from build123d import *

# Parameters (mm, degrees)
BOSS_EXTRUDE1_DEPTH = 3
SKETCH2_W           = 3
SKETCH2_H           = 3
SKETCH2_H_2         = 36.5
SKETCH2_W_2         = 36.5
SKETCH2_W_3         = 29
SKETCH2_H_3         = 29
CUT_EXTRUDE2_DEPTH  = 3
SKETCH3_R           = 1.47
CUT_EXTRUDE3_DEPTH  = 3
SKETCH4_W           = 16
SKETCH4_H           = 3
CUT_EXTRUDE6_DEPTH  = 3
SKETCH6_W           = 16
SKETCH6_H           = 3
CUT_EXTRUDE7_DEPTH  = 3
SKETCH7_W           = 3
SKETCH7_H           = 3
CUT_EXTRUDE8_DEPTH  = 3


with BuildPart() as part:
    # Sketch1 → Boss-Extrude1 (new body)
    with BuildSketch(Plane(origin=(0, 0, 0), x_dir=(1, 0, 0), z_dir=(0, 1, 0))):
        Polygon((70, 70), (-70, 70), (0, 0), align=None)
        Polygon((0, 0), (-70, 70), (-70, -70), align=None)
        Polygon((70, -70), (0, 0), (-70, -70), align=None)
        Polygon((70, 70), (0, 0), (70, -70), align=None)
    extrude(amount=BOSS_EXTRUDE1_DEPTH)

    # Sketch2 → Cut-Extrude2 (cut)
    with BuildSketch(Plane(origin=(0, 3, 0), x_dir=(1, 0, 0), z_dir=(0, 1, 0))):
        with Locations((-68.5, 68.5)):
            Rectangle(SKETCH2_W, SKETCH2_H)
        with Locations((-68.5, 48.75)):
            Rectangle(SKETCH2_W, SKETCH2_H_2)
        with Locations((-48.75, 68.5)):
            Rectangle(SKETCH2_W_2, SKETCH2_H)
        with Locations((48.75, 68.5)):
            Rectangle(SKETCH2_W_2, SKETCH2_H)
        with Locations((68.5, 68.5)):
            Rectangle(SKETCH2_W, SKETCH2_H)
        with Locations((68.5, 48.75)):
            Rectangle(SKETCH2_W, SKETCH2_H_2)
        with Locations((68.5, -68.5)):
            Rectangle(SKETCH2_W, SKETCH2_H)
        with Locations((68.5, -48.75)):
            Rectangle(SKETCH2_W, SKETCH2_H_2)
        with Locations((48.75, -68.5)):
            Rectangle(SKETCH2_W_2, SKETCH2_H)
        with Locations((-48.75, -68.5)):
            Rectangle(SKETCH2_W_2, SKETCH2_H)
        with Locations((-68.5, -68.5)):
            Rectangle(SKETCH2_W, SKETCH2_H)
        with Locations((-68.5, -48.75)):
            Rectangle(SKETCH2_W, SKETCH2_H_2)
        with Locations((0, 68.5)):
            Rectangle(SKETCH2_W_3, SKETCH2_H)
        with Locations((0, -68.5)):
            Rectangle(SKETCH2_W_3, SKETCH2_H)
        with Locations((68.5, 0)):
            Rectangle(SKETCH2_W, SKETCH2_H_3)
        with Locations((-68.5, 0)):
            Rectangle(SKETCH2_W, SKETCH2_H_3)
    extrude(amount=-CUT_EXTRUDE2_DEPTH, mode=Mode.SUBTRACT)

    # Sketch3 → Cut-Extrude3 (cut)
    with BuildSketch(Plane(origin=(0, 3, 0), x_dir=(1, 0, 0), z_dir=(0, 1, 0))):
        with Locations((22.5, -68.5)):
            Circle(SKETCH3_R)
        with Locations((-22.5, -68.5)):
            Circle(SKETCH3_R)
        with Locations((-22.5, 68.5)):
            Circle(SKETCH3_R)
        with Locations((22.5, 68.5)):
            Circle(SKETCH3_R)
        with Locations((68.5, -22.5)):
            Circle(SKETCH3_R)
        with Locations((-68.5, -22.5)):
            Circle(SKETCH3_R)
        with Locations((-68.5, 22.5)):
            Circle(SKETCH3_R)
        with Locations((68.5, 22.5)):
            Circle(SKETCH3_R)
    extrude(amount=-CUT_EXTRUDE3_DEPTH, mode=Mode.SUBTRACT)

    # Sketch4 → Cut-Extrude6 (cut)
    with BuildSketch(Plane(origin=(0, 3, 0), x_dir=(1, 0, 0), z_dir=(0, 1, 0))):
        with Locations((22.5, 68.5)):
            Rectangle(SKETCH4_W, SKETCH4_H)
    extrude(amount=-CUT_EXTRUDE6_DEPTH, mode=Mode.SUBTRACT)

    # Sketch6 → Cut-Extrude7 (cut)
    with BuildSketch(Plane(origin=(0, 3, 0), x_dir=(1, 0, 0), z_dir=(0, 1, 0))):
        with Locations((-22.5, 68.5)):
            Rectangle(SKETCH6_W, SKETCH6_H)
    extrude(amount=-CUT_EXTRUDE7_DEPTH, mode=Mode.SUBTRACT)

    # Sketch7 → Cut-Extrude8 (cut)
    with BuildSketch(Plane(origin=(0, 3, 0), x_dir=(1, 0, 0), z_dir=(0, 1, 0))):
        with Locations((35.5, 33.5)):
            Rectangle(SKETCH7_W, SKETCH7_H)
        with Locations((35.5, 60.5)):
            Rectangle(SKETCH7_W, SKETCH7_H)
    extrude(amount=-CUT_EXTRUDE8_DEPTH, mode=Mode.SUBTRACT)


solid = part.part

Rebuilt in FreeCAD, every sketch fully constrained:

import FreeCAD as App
import Part
import Sketcher
from FreeCAD import Vector


def add_polygon(sketch, points):
    """Adds a closed chain of lines whose ends are joined by coincident constraints."""
    first, n = sketch.GeometryCount, len(points)
    for a, b in zip(points, points[1:] + points[:1]):
        sketch.addGeometry(Part.LineSegment(App.Vector(*a, 0), App.Vector(*b, 0)), False)
    for i in range(n):
        sketch.addConstraint(Sketcher.Constraint("Coincident", first + i, 2, first + (i + 1) % n, 1))

doc = App.newDocument("Part")
body = doc.addObject("PartDesign::Body", "Body")

# Sketch on XZ plane
sketch1 = doc.addObject("Sketcher::SketchObject", "Sketch")
body.addObject(sketch1)
sketch1.AttachmentSupport = (doc.XZ_Plane, [""])
sketch1.MapMode = "FlatFace"
add_polygon(sketch1, [(70, -70), (-70, -70), (-70, 70), (70, 70)])  # lines 0-3
sketch1.addConstraint([
    Sketcher.Constraint("Horizontal", 0),
    Sketcher.Constraint("Vertical", 1),
    Sketcher.Constraint("Horizontal", 2),
    Sketcher.Constraint("Vertical", 3),
    Sketcher.Constraint("Symmetric", 0, 2, 2, 2, -1, 1),
    Sketcher.Constraint("Equal", 2, 1),
    Sketcher.Constraint("DistanceX", 0, 2, 0, 1, 140.0),
])
pad1 = doc.addObject("PartDesign::Pad", "Pad")
body.addObject(pad1)
pad1.Profile = sketch1
pad1.Length = 3
pad1.Reversed = True

# Sketch on XZ plane
sketch2 = doc.addObject("Sketcher::SketchObject", "Sketch001")
body.addObject(sketch2)
sketch2.AttachmentSupport = (doc.XZ_Plane, [""])
sketch2.MapMode = "FlatFace"
sketch2.AttachmentOffset = App.Placement(Vector(0, 0, -3), App.Rotation())
add_polygon(sketch2, [(-70, -70), (-70, -30.5), (-67, -30.5), (-67, -67), (-30.5, -67), (-30.5, -70)])  # lines 0-5
add_polygon(sketch2, [(30.5, -70), (30.5, -67), (67, -67), (67, -30.5), (70, -30.5), (70, -70)])  # lines 6-11
add_polygon(sketch2, [(70, 70), (70, 30.5), (67, 30.5), (67, 67), (30.5, 67), (30.5, 70)])  # lines 12-17
add_polygon(sketch2, [(-30.5, 70), (-30.5, 67), (-67, 67), (-67, 30.5), (-70, 30.5), (-70, 70)])  # lines 18-23
add_polygon(sketch2, [(-14.5, -70), (-14.5, -67), (14.5, -67), (14.5, -70)])  # lines 24-27
add_polygon(sketch2, [(-14.5, 67), (-14.5, 70), (14.5, 70), (14.5, 67)])  # lines 28-31
add_polygon(sketch2, [(67, -14.5), (67, 14.5), (70, 14.5), (70, -14.5)])  # lines 32-35
add_polygon(sketch2, [(-70, -14.5), (-70, 14.5), (-67, 14.5), (-67, -14.5)])  # lines 36-39
sketch2.addConstraint([
    Sketcher.Constraint("Vertical", 0),
    Sketcher.Constraint("Horizontal", 1),
    Sketcher.Constraint("Vertical", 2),
    Sketcher.Constraint("Horizontal", 3),
    Sketcher.Constraint("Vertical", 4),
    Sketcher.Constraint("Horizontal", 5),
    Sketcher.Constraint("Vertical", 6),
    Sketcher.Constraint("Horizontal", 7),
    Sketcher.Constraint("Vertical", 8),
    Sketcher.Constraint("Horizontal", 9),
    Sketcher.Constraint("Vertical", 10),
    Sketcher.Constraint("Horizontal", 11),
    Sketcher.Constraint("Vertical", 12),
    Sketcher.Constraint("Horizontal", 13),
    Sketcher.Constraint("Vertical", 14),
    Sketcher.Constraint("Horizontal", 15),
    Sketcher.Constraint("Vertical", 16),
    Sketcher.Constraint("Horizontal", 17),
    Sketcher.Constraint("Vertical", 18),
    Sketcher.Constraint("Horizontal", 19),
    Sketcher.Constraint("Vertical", 20),
    Sketcher.Constraint("Horizontal", 21),
    Sketcher.Constraint("Vertical", 22),
    Sketcher.Constraint("Horizontal", 23),
    Sketcher.Constraint("Vertical", 24),
    Sketcher.Constraint("Horizontal", 25),
    Sketcher.Constraint("Vertical", 26),
    Sketcher.Constraint("Horizontal", 27),
    Sketcher.Constraint("Vertical", 28),
    Sketcher.Constraint("Horizontal", 29),
    Sketcher.Constraint("Vertical", 30),
    Sketcher.Constraint("Horizontal", 31),
    Sketcher.Constraint("Vertical", 32),
    Sketcher.Constraint("Horizontal", 33),
    Sketcher.Constraint("Vertical", 34),
    Sketcher.Constraint("Horizontal", 35),
    Sketcher.Constraint("Vertical", 36),
    Sketcher.Constraint("Horizontal", 37),
    Sketcher.Constraint("Vertical", 38),
    Sketcher.Constraint("Horizontal", 39),
    Sketcher.Constraint("Symmetric", 0, 2, 12, 2, -1, 1),
    Sketcher.Constraint("Symmetric", 2, 2, 14, 2, -1, 1),
    Sketcher.Constraint("Symmetric", 4, 2, 16, 2, -1, 1),
    Sketcher.Constraint("Symmetric", 6, 2, 18, 2, -1, 1),
    Sketcher.Constraint("Symmetric", 8, 2, 20, 2, -1, 1),
    Sketcher.Constraint("Symmetric", 10, 2, 22, 2, -1, 1),
    Sketcher.Constraint("Symmetric", 26, 2, 28, 2, -1, 1),
    Sketcher.Constraint("Symmetric", 24, 2, 30, 2, -1, 1),
    Sketcher.Constraint("Symmetric", 34, 2, 36, 2, -1, 1),
    Sketcher.Constraint("Symmetric", 32, 2, 38, 2, -1, 1),
    Sketcher.Constraint("Symmetric", 3, 2, 6, 2, -2),
    Sketcher.Constraint("Symmetric", 1, 2, 8, 2, -2),
    Sketcher.Constraint("Symmetric", 5, 2, 10, 2, -2),
    Sketcher.Constraint("Horizontal", 7, 2, 24, 2),
    Sketcher.Constraint("Horizontal", 11, 2, 26, 2),
    Sketcher.Constraint("Horizontal", 33, 2, 36, 2),
    Sketcher.Constraint("Vertical", 27, 2, 28, 2),
    Sketcher.Constraint("Vertical", 14, 2, 32, 2),
    Sketcher.Constraint("Vertical", 17, 2, 33, 2),
    Sketcher.Constraint("Equal", 23, 0),
    Sketcher.Constraint("Equal", 19, 2),
    Sketcher.Constraint("Equal", 31, 32),
    Sketcher.Constraint("DistanceX", 1, 1, 1, 2, 3.0),
    Sketcher.Constraint("DistanceX", 25, 1, 25, 2, 29.0),
    Sketcher.Constraint("DistanceX", 3, 1, 3, 2, 36.5),
    Sketcher.Constraint("DistanceX", 0, 2, -1, 1, 70.0),
    Sketcher.Constraint("DistanceY", 2, 2, -1, 1, 67.0),
])
pocket1 = doc.addObject("PartDesign::Pocket", "Pocket")
body.addObject(pocket1)
pocket1.Profile = sketch2
pocket1.Length = 3
pocket1.Reversed = True

# Sketch on XZ plane
sketch3 = doc.addObject("Sketcher::SketchObject", "Sketch002")
body.addObject(sketch3)
sketch3.AttachmentSupport = (doc.XZ_Plane, [""])
sketch3.MapMode = "FlatFace"
sketch3.AttachmentOffset = App.Placement(Vector(0, 0, -3), App.Rotation())
sketch3.addGeometry([
    Part.Circle(Vector(22.5, 68.5, 0), Vector(0, 0, 1), 1.5),  # 0
    Part.Circle(Vector(-22.5, 68.5, 0), Vector(0, 0, 1), 1.5),  # 1
    Part.Circle(Vector(-22.5, -68.5, 0), Vector(0, 0, 1), 1.5),  # 2
    Part.Circle(Vector(22.5, -68.5, 0), Vector(0, 0, 1), 1.5),  # 3
    Part.Circle(Vector(68.5, 22.5, 0), Vector(0, 0, 1), 1.5),  # 4
    Part.Circle(Vector(-68.5, 22.5, 0), Vector(0, 0, 1), 1.5),  # 5
    Part.Circle(Vector(-68.5, -22.5, 0), Vector(0, 0, 1), 1.5),  # 6
    Part.Circle(Vector(68.5, -22.5, 0), Vector(0, 0, 1), 1.5),  # 7
], False)
sketch3.addConstraint([
    Sketcher.Constraint("Equal", 0, 1),
    Sketcher.Constraint("Equal", 1, 2),
    Sketcher.Constraint("Equal", 2, 3),
    Sketcher.Constraint("Equal", 3, 4),
    Sketcher.Constraint("Equal", 4, 5),
    Sketcher.Constraint("Equal", 5, 6),
    Sketcher.Constraint("Equal", 6, 7),
    Sketcher.Constraint("Symmetric", 0, 3, 2, 3, -1, 1),
    Sketcher.Constraint("Symmetric", 1, 3, 3, 3, -1, 1),
    Sketcher.Constraint("Symmetric", 4, 3, 6, 3, -1, 1),
    Sketcher.Constraint("Symmetric", 5, 3, 7, 3, -1, 1),
    Sketcher.Constraint("Symmetric", 0, 3, 1, 3, -2),
    Sketcher.Constraint("Symmetric", 4, 3, 5, 3, -2),
    Sketcher.Constraint("Diameter", 0, 2.94),
    Sketcher.Constraint("DistanceX", 1, 3, 0, 3, 45.0),
    Sketcher.Constraint("DistanceY", 2, 3, 1, 3, 137.0),
    Sketcher.Constraint("DistanceX", 0, 3, 4, 3, 46.0),
    Sketcher.Constraint("DistanceY", 4, 3, 0, 3, 46.0),
])
pocket2 = doc.addObject("PartDesign::Pocket", "Pocket001")
body.addObject(pocket2)
pocket2.Profile = sketch3
pocket2.Length = 3
pocket2.Reversed = True

# Sketch on XZ plane
sketch4 = doc.addObject("Sketcher::SketchObject", "Sketch003")
body.addObject(sketch4)
sketch4.AttachmentSupport = (doc.XZ_Plane, [""])
sketch4.MapMode = "FlatFace"
sketch4.AttachmentOffset = App.Placement(Vector(0, 0, -3), App.Rotation())
add_polygon(sketch4, [(14.5, -70), (14.5, -67), (30.5, -67), (30.5, -70)])  # lines 0-3
sketch4.addConstraint([
    Sketcher.Constraint("Vertical", 0),
    Sketcher.Constraint("Horizontal", 1),
    Sketcher.Constraint("Vertical", 2),
    Sketcher.Constraint("Horizontal", 3),
    Sketcher.Constraint("DistanceX", 1, 1, 1, 2, 16.0),
    Sketcher.Constraint("DistanceY", 0, 1, 0, 2, 3.0),
    Sketcher.Constraint("DistanceY", 0, 2, -1, 1, 67.0),
    Sketcher.Constraint("DistanceX", -1, 1, 0, 2, 14.5),
])
pocket3 = doc.addObject("PartDesign::Pocket", "Pocket002")
body.addObject(pocket3)
pocket3.Profile = sketch4
pocket3.Length = 3
pocket3.Reversed = True

# Sketch on XZ plane
sketch5 = doc.addObject("Sketcher::SketchObject", "Sketch004")
body.addObject(sketch5)
sketch5.AttachmentSupport = (doc.XZ_Plane, [""])
sketch5.MapMode = "FlatFace"
sketch5.AttachmentOffset = App.Placement(Vector(0, 0, -3), App.Rotation())
add_polygon(sketch5, [(-30.5, -70), (-30.5, -67), (-14.5, -67), (-14.5, -70)])  # lines 0-3
sketch5.addConstraint([
    Sketcher.Constraint("Vertical", 0),
    Sketcher.Constraint("Horizontal", 1),
    Sketcher.Constraint("Vertical", 2),
    Sketcher.Constraint("Horizontal", 3),
    Sketcher.Constraint("DistanceX", 1, 1, 1, 2, 16.0),
    Sketcher.Constraint("DistanceY", 0, 1, 0, 2, 3.0),
    Sketcher.Constraint("DistanceY", 0, 2, -1, 1, 67.0),
    Sketcher.Constraint("DistanceX", 0, 2, -1, 1, 30.5),
])
pocket4 = doc.addObject("PartDesign::Pocket", "Pocket003")
body.addObject(pocket4)
pocket4.Profile = sketch5
pocket4.Length = 3
pocket4.Reversed = True

# Sketch on XZ plane
sketch6 = doc.addObject("Sketcher::SketchObject", "Sketch005")
body.addObject(sketch6)
sketch6.AttachmentSupport = (doc.XZ_Plane, [""])
sketch6.MapMode = "FlatFace"
sketch6.AttachmentOffset = App.Placement(Vector(0, 0, -3), App.Rotation())
add_polygon(sketch6, [(34, -35), (34, -32), (37, -32), (37, -35)])  # lines 0-3
add_polygon(sketch6, [(34, -62), (34, -59), (37, -59), (37, -62)])  # lines 4-7
sketch6.addConstraint([
    Sketcher.Constraint("Vertical", 0),
    Sketcher.Constraint("Horizontal", 1),
    Sketcher.Constraint("Vertical", 2),
    Sketcher.Constraint("Horizontal", 3),
    Sketcher.Constraint("Vertical", 4),
    Sketcher.Constraint("Horizontal", 5),
    Sketcher.Constraint("Vertical", 6),
    Sketcher.Constraint("Horizontal", 7),
    Sketcher.Constraint("Vertical", 3, 2, 4, 2),
    Sketcher.Constraint("Vertical", 2, 2, 5, 2),
    Sketcher.Constraint("Equal", 7, 0),
    Sketcher.Constraint("Equal", 2, 4),
    Sketcher.Constraint("DistanceX", 1, 1, 1, 2, 3.0),
    Sketcher.Constraint("DistanceX", -1, 1, 0, 2, 34.0),
    Sketcher.Constraint("DistanceY", 0, 2, -1, 1, 32.0),
    Sketcher.Constraint("DistanceY", 4, 2, -1, 1, 59.0),
])
pocket5 = doc.addObject("PartDesign::Pocket", "Pocket004")
body.addObject(pocket5)
pocket5.Profile = sketch6
pocket5.Length = 3
pocket5.Reversed = True

doc.recompute()
